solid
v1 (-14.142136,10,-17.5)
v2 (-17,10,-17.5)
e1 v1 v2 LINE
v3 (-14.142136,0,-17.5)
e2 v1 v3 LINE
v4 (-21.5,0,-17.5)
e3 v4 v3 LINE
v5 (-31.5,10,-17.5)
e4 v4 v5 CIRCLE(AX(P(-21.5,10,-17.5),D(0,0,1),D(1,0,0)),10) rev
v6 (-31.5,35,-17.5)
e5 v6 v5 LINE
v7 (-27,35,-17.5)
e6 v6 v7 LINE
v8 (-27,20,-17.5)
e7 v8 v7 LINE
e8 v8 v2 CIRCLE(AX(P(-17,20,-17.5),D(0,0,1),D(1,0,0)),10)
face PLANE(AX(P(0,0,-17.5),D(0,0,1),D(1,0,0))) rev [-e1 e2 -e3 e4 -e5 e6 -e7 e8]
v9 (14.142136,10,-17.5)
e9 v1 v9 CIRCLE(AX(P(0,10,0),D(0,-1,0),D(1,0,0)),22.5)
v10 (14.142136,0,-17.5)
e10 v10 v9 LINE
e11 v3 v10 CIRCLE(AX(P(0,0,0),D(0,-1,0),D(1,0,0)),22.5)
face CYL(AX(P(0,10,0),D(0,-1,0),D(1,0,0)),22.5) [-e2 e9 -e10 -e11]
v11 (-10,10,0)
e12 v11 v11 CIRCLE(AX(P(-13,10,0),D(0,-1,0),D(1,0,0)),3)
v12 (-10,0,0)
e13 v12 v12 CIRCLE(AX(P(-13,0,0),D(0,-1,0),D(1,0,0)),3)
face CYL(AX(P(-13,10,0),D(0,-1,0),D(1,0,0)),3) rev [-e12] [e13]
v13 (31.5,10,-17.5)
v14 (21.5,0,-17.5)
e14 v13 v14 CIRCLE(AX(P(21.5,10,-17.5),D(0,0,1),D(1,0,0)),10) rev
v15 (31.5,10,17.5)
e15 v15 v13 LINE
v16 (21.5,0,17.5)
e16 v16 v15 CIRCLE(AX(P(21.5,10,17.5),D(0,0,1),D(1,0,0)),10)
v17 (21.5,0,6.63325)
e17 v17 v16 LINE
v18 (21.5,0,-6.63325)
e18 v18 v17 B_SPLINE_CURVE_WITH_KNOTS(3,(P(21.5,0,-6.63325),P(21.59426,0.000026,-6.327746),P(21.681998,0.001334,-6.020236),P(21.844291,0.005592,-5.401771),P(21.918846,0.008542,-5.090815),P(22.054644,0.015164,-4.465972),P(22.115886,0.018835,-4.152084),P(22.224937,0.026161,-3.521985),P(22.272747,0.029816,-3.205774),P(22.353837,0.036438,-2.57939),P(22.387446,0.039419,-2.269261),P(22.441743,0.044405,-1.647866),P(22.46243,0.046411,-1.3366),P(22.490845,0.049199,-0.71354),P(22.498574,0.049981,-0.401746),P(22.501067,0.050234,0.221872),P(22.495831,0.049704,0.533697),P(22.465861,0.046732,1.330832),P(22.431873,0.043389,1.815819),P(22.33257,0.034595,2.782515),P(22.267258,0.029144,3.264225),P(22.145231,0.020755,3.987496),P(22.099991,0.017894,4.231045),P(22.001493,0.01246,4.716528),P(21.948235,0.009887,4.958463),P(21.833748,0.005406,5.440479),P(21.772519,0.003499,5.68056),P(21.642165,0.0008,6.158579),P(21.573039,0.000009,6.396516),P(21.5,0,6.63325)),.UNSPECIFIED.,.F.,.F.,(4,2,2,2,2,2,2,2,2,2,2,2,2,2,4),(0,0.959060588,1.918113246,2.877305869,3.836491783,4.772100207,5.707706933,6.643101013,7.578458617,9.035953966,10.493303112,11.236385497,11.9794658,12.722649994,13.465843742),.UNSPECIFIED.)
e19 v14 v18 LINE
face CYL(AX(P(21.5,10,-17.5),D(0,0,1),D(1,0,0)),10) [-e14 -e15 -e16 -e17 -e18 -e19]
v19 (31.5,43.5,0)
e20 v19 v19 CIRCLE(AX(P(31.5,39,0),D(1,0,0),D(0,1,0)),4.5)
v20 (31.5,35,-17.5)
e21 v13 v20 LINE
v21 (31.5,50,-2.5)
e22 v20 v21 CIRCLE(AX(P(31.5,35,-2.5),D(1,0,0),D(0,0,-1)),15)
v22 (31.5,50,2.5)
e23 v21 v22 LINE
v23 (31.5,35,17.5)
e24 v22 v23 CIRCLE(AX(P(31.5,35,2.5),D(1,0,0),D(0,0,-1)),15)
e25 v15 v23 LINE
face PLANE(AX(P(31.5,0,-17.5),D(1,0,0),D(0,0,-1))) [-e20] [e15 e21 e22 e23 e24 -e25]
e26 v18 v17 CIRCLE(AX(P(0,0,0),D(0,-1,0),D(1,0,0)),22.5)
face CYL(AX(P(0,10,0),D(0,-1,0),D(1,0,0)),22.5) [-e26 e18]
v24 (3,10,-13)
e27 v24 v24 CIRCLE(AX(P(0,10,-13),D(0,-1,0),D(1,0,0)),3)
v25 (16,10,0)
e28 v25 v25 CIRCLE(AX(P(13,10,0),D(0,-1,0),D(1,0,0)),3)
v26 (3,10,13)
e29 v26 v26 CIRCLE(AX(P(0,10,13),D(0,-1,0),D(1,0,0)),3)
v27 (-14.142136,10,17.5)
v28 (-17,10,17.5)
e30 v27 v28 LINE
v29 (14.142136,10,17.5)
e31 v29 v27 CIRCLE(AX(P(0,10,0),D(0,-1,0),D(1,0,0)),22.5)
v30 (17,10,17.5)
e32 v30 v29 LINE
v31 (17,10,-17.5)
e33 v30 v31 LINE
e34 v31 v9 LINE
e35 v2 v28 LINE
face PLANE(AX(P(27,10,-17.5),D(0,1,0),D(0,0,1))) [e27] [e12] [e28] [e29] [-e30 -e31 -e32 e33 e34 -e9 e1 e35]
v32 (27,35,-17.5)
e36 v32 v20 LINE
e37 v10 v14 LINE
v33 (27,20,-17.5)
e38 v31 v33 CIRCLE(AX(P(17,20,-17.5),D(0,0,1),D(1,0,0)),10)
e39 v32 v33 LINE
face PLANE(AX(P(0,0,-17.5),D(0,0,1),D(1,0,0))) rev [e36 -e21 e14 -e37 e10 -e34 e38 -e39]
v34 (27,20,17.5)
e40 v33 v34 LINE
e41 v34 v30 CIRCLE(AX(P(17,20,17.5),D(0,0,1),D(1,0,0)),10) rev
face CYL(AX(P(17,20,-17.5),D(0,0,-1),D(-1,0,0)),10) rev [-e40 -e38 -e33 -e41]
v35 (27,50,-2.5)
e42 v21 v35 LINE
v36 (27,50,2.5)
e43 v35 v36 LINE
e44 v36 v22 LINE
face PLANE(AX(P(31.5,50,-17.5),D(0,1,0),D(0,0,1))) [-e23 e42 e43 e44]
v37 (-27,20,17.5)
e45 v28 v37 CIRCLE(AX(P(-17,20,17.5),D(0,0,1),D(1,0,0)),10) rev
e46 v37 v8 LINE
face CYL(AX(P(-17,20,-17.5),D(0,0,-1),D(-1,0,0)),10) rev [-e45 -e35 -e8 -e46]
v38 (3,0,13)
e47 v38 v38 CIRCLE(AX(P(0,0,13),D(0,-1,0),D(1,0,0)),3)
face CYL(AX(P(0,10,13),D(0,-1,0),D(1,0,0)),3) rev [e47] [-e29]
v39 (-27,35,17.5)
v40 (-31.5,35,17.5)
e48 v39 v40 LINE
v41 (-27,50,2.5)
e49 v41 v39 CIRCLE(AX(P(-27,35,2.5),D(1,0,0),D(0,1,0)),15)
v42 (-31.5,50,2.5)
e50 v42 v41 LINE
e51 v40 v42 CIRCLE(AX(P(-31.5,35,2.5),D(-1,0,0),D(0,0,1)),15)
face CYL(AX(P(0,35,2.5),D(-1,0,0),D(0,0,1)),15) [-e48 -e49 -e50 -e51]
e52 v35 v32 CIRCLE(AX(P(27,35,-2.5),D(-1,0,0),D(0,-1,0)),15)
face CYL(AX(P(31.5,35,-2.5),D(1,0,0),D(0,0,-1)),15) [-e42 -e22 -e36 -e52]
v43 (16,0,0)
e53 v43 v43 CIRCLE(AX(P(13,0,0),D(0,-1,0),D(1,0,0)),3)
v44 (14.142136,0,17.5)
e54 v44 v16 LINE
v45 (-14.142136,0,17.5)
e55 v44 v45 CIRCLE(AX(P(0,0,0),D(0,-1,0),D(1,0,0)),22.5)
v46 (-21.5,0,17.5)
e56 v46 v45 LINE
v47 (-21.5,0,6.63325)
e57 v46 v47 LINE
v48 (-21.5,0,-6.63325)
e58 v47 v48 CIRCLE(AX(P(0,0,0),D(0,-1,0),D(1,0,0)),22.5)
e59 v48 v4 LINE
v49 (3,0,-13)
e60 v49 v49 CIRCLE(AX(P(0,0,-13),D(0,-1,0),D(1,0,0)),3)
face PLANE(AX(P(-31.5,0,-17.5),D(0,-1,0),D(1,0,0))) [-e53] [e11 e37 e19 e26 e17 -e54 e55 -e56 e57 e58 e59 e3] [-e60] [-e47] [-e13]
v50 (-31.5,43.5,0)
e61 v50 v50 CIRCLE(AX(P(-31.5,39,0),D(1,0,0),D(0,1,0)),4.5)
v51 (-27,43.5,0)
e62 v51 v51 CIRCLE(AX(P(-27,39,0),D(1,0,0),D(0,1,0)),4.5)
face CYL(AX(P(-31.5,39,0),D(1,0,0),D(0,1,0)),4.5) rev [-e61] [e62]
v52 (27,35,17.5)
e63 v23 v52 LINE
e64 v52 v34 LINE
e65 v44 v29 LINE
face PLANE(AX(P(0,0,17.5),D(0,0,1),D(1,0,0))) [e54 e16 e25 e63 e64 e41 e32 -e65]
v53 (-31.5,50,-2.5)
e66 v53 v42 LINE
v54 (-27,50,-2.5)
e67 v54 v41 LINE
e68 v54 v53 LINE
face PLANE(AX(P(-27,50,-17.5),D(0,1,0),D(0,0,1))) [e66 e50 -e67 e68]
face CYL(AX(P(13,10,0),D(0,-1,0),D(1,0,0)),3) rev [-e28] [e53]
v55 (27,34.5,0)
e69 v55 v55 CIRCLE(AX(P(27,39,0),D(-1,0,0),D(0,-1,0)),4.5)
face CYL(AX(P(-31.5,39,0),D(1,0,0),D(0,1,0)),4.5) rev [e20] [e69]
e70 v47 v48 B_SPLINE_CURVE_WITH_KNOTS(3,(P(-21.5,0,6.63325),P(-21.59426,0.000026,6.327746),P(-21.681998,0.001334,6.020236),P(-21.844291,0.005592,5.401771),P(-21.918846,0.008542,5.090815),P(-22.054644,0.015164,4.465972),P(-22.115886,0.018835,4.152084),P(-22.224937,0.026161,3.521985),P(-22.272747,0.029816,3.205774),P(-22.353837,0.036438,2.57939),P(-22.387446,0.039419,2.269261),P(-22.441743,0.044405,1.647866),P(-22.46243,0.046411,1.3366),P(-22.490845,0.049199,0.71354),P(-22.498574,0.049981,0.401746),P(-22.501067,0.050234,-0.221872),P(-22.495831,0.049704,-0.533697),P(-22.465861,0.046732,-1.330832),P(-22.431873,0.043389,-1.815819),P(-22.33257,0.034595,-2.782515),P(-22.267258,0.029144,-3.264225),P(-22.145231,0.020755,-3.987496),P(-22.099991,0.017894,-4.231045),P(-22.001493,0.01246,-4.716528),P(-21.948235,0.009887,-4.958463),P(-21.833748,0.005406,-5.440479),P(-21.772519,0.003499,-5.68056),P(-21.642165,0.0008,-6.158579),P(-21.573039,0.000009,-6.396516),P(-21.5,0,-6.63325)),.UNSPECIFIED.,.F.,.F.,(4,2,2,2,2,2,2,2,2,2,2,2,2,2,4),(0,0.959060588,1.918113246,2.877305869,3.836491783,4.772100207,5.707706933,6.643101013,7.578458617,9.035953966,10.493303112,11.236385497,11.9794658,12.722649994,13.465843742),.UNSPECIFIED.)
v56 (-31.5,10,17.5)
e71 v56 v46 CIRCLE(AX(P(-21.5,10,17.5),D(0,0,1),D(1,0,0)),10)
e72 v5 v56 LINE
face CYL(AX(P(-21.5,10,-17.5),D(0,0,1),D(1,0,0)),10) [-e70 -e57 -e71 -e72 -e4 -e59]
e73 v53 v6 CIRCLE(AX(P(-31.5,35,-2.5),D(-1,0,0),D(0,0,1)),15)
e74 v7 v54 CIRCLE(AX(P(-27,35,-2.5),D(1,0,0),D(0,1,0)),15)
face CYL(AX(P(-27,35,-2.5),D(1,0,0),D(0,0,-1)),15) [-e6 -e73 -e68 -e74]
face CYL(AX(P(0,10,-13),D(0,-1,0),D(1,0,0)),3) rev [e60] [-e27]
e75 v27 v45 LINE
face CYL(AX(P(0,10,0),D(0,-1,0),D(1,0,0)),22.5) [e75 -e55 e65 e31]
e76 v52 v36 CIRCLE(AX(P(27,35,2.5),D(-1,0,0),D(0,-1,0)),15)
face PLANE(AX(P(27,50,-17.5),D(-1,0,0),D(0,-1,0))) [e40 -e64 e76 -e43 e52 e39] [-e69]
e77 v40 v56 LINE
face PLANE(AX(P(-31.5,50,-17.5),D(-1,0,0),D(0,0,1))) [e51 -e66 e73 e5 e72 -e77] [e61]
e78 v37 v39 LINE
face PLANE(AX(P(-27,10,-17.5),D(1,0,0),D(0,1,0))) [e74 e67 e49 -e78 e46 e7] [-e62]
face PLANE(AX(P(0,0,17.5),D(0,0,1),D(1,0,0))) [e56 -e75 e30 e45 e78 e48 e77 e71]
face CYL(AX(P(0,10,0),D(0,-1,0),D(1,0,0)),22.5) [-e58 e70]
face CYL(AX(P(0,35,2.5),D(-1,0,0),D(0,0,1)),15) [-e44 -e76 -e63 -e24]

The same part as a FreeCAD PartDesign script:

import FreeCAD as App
import Part
import Sketcher

V = App.Vector
Q = App.Units.Quantity


def edges_at(feature, points):
    """Names of the edges that pass closest to the given points."""
    edges = feature.Shape.Edges
    near = lambda p: min(range(len(edges)), key=lambda i: edges[i].distToShape(Part.Vertex(*p))[0])
    return sorted({f"Edge{near(p) + 1}" for p in points})

doc = App.newDocument("Part")
params = doc.addObject("Spreadsheet::Sheet", "Params")
for row, (alias, value) in enumerate([
    ("sketch1_width", "63 mm"),
    ("sketch1_width2", "54 mm"),
    ("sketch1_height", "50 mm"),
    ("sketch1_height2", "40 mm"),
    ("pad1_length", "35 mm"),
    ("fillet_radius", "10 mm"),
    ("sketch2_diameter", "45 mm"),
    ("pad2_length", "10 mm"),
    ("sketch3_diameter", "6 mm"),
    ("pocket1_length", "10 mm"),
    ("fillet2_radius", "15 mm"),
    ("sketch4_diameter", "9 mm"),
], start=1):
    params.set(f"A{row}", alias)
    params.set(f"B{row}", "=" + value)
    params.setAlias(f"B{row}", alias)

body = doc.addObject("PartDesign::Body", "Body")

# Sketch on XY plane
sketch1 = body.newObject("Sketcher::SketchObject", "Sketch")
sketch1.AttachmentSupport = (doc.getObject("XY_Plane"), [""])
sketch1.MapMode = "FlatFace"
sketch1.addGeometry([
    Part.LineSegment(V(-31.5, 0, 0), V(31.5, 0, 0)),  # 0
    Part.LineSegment(V(31.5, 0, 0), V(31.5, 50, 0)),  # 1
    Part.LineSegment(V(31.5, 50, 0), V(27, 50, 0)),  # 2
    Part.LineSegment(V(27, 50, 0), V(27, 10, 0)),  # 3
    Part.LineSegment(V(27, 10, 0), V(-27, 10, 0)),  # 4
    Part.LineSegment(V(-27, 10, 0), V(-27, 50, 0)),  # 5
    Part.LineSegment(V(-27, 50, 0), V(-31.5, 50, 0)),  # 6
    Part.LineSegment(V(-31.5, 50, 0), V(-31.5, 0, 0)),  # 7
], False)
sketch1.addConstraint([
    Sketcher.Constraint("Coincident", 0, 2, 1, 1),
    Sketcher.Constraint("Coincident", 1, 2, 2, 1),
    Sketcher.Constraint("Coincident", 2, 2, 3, 1),
    Sketcher.Constraint("Coincident", 3, 2, 4, 1),
    Sketcher.Constraint("Coincident", 4, 2, 5, 1),
    Sketcher.Constraint("Coincident", 5, 2, 6, 1),
    Sketcher.Constraint("Coincident", 6, 2, 7, 1),
    Sketcher.Constraint("Coincident", 7, 2, 0, 1),
    Sketcher.Constraint("Horizontal", 0),
    Sketcher.Constraint("Vertical", 1),
    Sketcher.Constraint("Horizontal", 2),
    Sketcher.Constraint("Vertical", 3),
    Sketcher.Constraint("Horizontal", 4),
    Sketcher.Constraint("Vertical", 5),
    Sketcher.Constraint("Horizontal", 6),
    Sketcher.Constraint("Vertical", 7),
    Sketcher.Constraint("Symmetric", 0, 2, 7, 2, -1, 1),
    Sketcher.Constraint("Symmetric", 2, 2, 5, 2, -2),
    Sketcher.Constraint("DistanceX", 0, 1, 0, 2, Q("63 mm")),
    Sketcher.Constraint("DistanceX", 4, 2, 4, 1, Q("54 mm")),
    Sketcher.Constraint("DistanceY", 1, 1, 1, 2, Q("50 mm")),
    Sketcher.Constraint("DistanceY", 3, 2, 3, 1, Q("40 mm")),
])
sketch1.setExpression("Constraints[18]", "Params.sketch1_width")
sketch1.setExpression("Constraints[19]", "Params.sketch1_width2")
sketch1.setExpression("Constraints[20]", "Params.sketch1_height")
sketch1.setExpression("Constraints[21]", "Params.sketch1_height2")
pad1 = body.newObject("PartDesign::Pad", "Pad")
pad1.Profile = sketch1
pad1.setExpression("Length", "Params.pad1_length")
pad1.Midplane = True
doc.recompute()

fillet = body.newObject("PartDesign::Fillet", "Fillet")
fillet.Base = (pad1, edges_at(pad1, [
    (-27, 10, 0),
    (27, 10, 0),
    (31.5, 0, 0),
    (-31.5, 0, 0),
]))
fillet.setExpression("Radius", "Params.fillet_radius")

# Sketch on XZ plane
sketch2 = body.newObject("Sketcher::SketchObject", "Sketch001")
sketch2.AttachmentSupport = (doc.getObject("XZ_Plane"), [""])
sketch2.MapMode = "FlatFace"
sketch2.addGeometry(Part.Circle(V(0, 0, 0), V(0, 0, 1), 22.5), False)
sketch2.addConstraint([
    Sketcher.Constraint("Coincident", 0, 3, -1, 1),
    Sketcher.Constraint("Diameter", 0, Q("45 mm")),
])
sketch2.setExpression("Constraints[1]", "Params.sketch2_diameter")
pad2 = body.newObject("PartDesign::Pad", "Pad001")
pad2.Profile = sketch2
pad2.setExpression("Length", "Params.pad2_length")
pad2.Reversed = True

# Sketch on XZ plane
sketch3 = body.newObject("Sketcher::SketchObject", "Sketch002")
sketch3.AttachmentSupport = (doc.getObject("XZ_Plane"), [""])
sketch3.MapMode = "FlatFace"
sketch3.addGeometry([
    Part.Circle(V(0, 13, 0), V(0, 0, 1), 3),
    Part.Circle(V(13, 0, 0), V(0, 0, 1), 3),
    Part.Circle(V(0, -13, 0), V(0, 0, 1), 3),
    Part.Circle(V(-13, 0, 0), V(0, 0, 1), 3),
], False)
sketch3.addConstraint([
    Sketcher.Constraint("Equal", 0, 1),
    Sketcher.Constraint("Equal", 1, 2),
    Sketcher.Constraint("Equal", 2, 3),
    Sketcher.Constraint("Symmetric", 0, 3, 2, 3, -1, 1),
    Sketcher.Constraint("Symmetric", 1, 3, 3, 3, -1, 1),
    Sketcher.Constraint("PointOnObject", 0, 3, -2),
    Sketcher.Constraint("PointOnObject", 1, 3, -1),
    Sketcher.Constraint("Diameter", 0, Q("6 mm")),
    Sketcher.Constraint("DistanceY", -1, 1, 0, 3, Q("13 mm")),
    Sketcher.Constraint("DistanceX", -1, 1, 1, 3, Q("13 mm")),
])
sketch3.setExpression("Constraints[7]", "Params.sketch3_diameter")
pocket1 = body.newObject("PartDesign::Pocket", "Pocket")
pocket1.Profile = sketch3
pocket1.setExpression("Length", "Params.pocket1_length")
doc.recompute()

fillet2 = body.newObject("PartDesign::Fillet", "Fillet001")
fillet2.Base = (pocket1, edges_at(pocket1, [
    (29.25, 50, 17.5),
    (29.25, 50, -17.5),
    (-29.25, 50, -17.5),
    (-29.25, 50, 17.5),
]))
fillet2.setExpression("Radius", "Params.fillet2_radius")

# Sketch on YZ plane
sketch4 = body.newObject("Sketcher::SketchObject", "Sketch003")
sketch4.AttachmentSupport = (doc.getObject("YZ_Plane"), [""])
sketch4.MapMode = "FlatFace"
sketch4.AttachmentOffset = App.Placement(V(0, 0, 31.5), App.Rotation())
sketch4.addGeometry(Part.Circle(V(39, 0, 0), V(0, 0, 1), 4.5), False)
sketch4.addConstraint([
    Sketcher.Constraint("PointOnObject", 0, 3, -1),
    Sketcher.Constraint("Diameter", 0, Q("9 mm")),
    Sketcher.Constraint("DistanceX", -1, 1, 0, 3, Q("39 mm")),
])
sketch4.setExpression("Constraints[1]", "Params.sketch4_diameter")
pocket2 = body.newObject("PartDesign::Pocket", "Pocket001")
pocket2.Profile = sketch4
pocket2.Type = "ThroughAll"

doc.recompute()
